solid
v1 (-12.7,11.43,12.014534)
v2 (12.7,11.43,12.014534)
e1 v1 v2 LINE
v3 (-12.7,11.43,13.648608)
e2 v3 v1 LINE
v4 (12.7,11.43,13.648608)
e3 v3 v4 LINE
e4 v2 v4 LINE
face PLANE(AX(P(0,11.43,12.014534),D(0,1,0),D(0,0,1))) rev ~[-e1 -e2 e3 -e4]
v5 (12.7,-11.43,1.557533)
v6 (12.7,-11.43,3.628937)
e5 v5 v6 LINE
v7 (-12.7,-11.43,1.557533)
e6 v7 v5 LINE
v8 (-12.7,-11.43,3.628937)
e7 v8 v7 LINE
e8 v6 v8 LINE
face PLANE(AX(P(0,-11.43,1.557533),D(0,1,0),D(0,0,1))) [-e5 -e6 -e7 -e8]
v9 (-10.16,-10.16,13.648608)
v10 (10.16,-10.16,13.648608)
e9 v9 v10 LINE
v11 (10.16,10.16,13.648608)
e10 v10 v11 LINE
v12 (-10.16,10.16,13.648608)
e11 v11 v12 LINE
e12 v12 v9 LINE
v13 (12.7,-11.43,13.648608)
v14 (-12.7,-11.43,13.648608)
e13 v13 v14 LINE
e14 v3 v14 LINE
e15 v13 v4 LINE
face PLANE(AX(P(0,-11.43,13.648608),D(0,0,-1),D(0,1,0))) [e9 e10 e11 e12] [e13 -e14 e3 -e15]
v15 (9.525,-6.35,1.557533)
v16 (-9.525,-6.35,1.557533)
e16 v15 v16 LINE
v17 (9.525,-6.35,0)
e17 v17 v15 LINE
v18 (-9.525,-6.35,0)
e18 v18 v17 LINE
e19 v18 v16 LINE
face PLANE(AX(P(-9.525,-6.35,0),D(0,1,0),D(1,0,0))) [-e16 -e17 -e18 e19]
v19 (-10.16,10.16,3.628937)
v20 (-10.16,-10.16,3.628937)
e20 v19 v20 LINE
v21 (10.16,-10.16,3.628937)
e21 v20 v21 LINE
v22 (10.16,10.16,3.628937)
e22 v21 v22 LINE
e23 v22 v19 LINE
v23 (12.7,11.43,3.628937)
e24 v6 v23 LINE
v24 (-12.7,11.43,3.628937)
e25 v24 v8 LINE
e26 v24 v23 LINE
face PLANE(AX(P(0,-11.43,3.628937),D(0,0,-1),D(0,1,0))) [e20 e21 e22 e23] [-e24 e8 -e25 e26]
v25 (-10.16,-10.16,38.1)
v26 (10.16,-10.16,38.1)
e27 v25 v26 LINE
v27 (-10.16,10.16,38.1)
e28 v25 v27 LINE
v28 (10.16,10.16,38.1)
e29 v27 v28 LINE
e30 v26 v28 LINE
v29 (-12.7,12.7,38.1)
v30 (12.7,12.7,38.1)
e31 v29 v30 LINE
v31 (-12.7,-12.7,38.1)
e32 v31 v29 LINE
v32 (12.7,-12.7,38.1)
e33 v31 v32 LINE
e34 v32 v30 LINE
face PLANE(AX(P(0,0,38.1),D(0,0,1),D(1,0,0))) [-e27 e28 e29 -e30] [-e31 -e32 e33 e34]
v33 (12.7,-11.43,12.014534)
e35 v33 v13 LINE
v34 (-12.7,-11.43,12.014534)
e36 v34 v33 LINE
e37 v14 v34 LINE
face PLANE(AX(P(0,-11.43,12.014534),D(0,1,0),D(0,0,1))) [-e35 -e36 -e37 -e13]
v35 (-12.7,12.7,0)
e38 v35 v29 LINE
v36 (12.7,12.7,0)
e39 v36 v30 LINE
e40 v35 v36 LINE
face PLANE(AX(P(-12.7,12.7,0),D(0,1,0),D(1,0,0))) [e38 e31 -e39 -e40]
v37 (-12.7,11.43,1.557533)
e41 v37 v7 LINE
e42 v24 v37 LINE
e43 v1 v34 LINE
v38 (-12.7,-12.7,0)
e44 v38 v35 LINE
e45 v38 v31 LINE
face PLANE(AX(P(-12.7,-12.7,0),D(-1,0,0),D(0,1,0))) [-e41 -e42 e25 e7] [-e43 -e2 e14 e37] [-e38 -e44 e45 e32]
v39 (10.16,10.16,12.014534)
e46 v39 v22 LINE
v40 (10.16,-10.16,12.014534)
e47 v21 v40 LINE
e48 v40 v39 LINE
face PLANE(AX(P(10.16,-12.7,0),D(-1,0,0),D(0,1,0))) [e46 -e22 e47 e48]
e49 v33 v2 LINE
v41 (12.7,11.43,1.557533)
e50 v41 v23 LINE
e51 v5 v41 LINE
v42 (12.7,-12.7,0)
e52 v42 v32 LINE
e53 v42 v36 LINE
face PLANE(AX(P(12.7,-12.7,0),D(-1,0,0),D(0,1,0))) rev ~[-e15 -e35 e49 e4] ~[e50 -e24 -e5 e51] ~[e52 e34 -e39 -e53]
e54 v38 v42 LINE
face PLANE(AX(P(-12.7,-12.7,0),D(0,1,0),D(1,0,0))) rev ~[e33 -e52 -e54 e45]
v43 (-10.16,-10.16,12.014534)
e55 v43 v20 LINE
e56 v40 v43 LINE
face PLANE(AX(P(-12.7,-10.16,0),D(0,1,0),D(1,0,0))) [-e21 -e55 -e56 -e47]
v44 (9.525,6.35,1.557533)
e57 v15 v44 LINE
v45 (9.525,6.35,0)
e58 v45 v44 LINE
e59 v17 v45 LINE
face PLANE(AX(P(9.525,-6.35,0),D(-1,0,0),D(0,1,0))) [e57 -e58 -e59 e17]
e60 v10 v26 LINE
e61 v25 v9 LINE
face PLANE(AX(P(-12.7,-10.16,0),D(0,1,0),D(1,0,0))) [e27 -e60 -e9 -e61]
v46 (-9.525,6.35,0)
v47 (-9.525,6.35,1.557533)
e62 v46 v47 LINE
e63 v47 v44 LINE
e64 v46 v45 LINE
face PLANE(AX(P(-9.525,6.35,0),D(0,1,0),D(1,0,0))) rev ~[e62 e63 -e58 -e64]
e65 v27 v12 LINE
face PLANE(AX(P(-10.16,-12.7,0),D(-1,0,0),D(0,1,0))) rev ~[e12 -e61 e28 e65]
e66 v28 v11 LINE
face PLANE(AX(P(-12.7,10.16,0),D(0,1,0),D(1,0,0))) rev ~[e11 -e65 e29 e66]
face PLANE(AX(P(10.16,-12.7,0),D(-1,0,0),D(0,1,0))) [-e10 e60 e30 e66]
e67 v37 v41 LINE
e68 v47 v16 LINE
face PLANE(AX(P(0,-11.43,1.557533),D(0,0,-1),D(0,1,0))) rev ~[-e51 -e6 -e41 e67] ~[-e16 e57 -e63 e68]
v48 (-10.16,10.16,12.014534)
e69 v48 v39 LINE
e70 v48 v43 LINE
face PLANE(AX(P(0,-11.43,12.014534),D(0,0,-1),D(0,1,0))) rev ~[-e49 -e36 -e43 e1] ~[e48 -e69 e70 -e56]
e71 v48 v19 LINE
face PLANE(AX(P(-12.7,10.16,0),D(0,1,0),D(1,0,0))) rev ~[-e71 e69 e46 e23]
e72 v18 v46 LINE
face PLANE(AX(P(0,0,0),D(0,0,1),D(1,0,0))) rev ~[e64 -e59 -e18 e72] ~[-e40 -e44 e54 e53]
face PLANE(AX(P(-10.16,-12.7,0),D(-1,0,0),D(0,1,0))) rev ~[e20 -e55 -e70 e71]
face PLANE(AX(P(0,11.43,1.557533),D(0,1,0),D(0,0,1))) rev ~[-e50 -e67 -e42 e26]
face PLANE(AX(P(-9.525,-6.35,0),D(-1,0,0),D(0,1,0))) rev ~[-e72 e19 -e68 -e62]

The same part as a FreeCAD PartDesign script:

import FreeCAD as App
import Part
import Sketcher
from FreeCAD import Vector
Q = App.Units.Quantity


def faces_at(feature, points):
    """Names of the faces that lie closest to the given points."""
    faces = feature.Shape.Faces
    near = lambda p: min(range(len(faces)), key=lambda i: faces[i].distToShape(Part.Vertex(*p))[0])
    return sorted({f"Face{near(p) + 1}" for p in points})


def add_polygon(sketch, points):
    """Adds a closed chain of lines whose ends are joined by coincident constraints."""
    first, n = sketch.GeometryCount, len(points)
    for a, b in zip(points, points[1:] + points[:1]):
        sketch.addGeometry(Part.LineSegment(App.Vector(*a, 0), App.Vector(*b, 0)), False)
    for i in range(n):
        sketch.addConstraint(Sketcher.Constraint("Coincident", first + i, 2, first + (i + 1) % n, 1))

doc = App.newDocument("Part")
body = doc.addObject("PartDesign::Body", "Body")

sketch1 = doc.addObject("Sketcher::SketchObject", "Sketch")
body.addObject(sketch1)
sketch1.AttachmentSupport = (doc.XY_Plane, [""])
sketch1.MapMode = "FlatFace"
add_polygon(sketch1, [(-13, 13), (-13, -13), (13, -13), (13, 13)])
sketch1.addConstraint([
    Sketcher.Constraint("Vertical", 0),
    Sketcher.Constraint("Horizontal", 1),
    Sketcher.Constraint("Vertical", 2),
    Sketcher.Constraint("Horizontal", 3),
    Sketcher.Constraint("Symmetric", 0, 2, 2, 2, -1, 1),
    Sketcher.Constraint("Equal", 3, 0),
    Sketcher.Constraint("DistanceX", 1, 1, 1, 2, Q("1 in")),
])
pad1 = doc.addObject("PartDesign::Pad", "Pad")
body.addObject(pad1)
pad1.Profile = sketch1
pad1.Length = Q("1.5 in")
doc.recompute()

thickness = doc.addObject("PartDesign::Thickness", "Thickness")
body.addObject(thickness)
thickness.Base = (pad1, faces_at(pad1, [(0, 0, 38.1)]))
thickness.Value = Q("0.1 in")
thickness.Reversed = True
thickness.Join = "Arc"

sketch2 = doc.addObject("Sketcher::SketchObject", "Sketch001")
body.addObject(sketch2)
sketch2.AttachmentSupport = (doc.XY_Plane, [""])
sketch2.MapMode = "FlatFace"
add_polygon(sketch2, [(-10, 6), (-10, -6), (10, -6), (10, 6)])
sketch2.addConstraint([
    Sketcher.Constraint("Vertical", 0),
    Sketcher.Constraint("Horizontal", 1),
    Sketcher.Constraint("Vertical", 2),
    Sketcher.Constraint("Horizontal", 3),
    Sketcher.Constraint("Symmetric", 0, 2, 2, 2, -1, 1),
    Sketcher.Constraint("DistanceY", 0, 2, 0, 1, Q("0.5 in")),
    Sketcher.Constraint("DistanceX", 1, 1, 1, 2, Q("0.75 in")),
])
pocket1 = doc.addObject("PartDesign::Pocket", "Pocket")
body.addObject(pocket1)
pocket1.Profile = sketch2
pocket1.Length = Q("1 in")
pocket1.Reversed = True

sketch3 = doc.addObject("Sketcher::SketchObject", "Sketch002")
body.addObject(sketch3)
sketch3.AttachmentSupport = (doc.YZ_Plane, [""])
sketch3.MapMode = "FlatFace"
add_polygon(sketch3, [(-11.4, 3.6), (-11.4, 1.6), (11.4, 1.6), (11.4, 3.6)])
sketch3.addConstraint([
    Sketcher.Constraint("Vertical", 0),
    Sketcher.Constraint("Horizontal", 1),
    Sketcher.Constraint("Vertical", 2),
    Sketcher.Constraint("Horizontal", 3),
    Sketcher.Constraint("DistanceX", 1, 1, 1, 2, Q("0.9 in")),
    Sketcher.Constraint("DistanceX", 0, 2, -1, 1, Q("0.45 in")),
    Sketcher.Constraint("DistanceY", 0, 2, 0, 1, Q("2.071403 mm")),
    Sketcher.Constraint("DistanceY", -1, 1, 0, 2, Q("1.557533 mm")),
])
pocket2 = doc.addObject("PartDesign::Pocket", "Pocket001")
body.addObject(pocket2)
pocket2.Profile = sketch3
pocket2.Type = "ThroughAll"
pocket2.Midplane = True

sketch4 = doc.addObject("Sketcher::SketchObject", "Sketch003")
body.addObject(sketch4)
sketch4.AttachmentSupport = (doc.YZ_Plane, [""])
sketch4.MapMode = "FlatFace"
add_polygon(sketch4, [(-11.4, 13.6), (-11.4, 12), (11.4, 12), (11.4, 13.6)])
sketch4.addConstraint([
    Sketcher.Constraint("Vertical", 0),
    Sketcher.Constraint("Horizontal", 1),
    Sketcher.Constraint("Vertical", 2),
    Sketcher.Constraint("Horizontal", 3),
    Sketcher.Constraint("DistanceX", 1, 1, 1, 2, Q("0.9 in")),
    Sketcher.Constraint("DistanceX", 0, 2, -1, 1, Q("0.45 in")),
    Sketcher.Constraint("DistanceY", 0, 2, 0, 1, Q("1.634075 mm")),
    Sketcher.Constraint("DistanceY", -1, 1, 2, 2, Q("13.648608 mm")),
])
pocket3 = doc.addObject("PartDesign::Pocket", "Pocket002")
body.addObject(pocket3)
pocket3.Profile = sketch4
pocket3.Type = "ThroughAll"
pocket3.Midplane = True

doc.recompute()
